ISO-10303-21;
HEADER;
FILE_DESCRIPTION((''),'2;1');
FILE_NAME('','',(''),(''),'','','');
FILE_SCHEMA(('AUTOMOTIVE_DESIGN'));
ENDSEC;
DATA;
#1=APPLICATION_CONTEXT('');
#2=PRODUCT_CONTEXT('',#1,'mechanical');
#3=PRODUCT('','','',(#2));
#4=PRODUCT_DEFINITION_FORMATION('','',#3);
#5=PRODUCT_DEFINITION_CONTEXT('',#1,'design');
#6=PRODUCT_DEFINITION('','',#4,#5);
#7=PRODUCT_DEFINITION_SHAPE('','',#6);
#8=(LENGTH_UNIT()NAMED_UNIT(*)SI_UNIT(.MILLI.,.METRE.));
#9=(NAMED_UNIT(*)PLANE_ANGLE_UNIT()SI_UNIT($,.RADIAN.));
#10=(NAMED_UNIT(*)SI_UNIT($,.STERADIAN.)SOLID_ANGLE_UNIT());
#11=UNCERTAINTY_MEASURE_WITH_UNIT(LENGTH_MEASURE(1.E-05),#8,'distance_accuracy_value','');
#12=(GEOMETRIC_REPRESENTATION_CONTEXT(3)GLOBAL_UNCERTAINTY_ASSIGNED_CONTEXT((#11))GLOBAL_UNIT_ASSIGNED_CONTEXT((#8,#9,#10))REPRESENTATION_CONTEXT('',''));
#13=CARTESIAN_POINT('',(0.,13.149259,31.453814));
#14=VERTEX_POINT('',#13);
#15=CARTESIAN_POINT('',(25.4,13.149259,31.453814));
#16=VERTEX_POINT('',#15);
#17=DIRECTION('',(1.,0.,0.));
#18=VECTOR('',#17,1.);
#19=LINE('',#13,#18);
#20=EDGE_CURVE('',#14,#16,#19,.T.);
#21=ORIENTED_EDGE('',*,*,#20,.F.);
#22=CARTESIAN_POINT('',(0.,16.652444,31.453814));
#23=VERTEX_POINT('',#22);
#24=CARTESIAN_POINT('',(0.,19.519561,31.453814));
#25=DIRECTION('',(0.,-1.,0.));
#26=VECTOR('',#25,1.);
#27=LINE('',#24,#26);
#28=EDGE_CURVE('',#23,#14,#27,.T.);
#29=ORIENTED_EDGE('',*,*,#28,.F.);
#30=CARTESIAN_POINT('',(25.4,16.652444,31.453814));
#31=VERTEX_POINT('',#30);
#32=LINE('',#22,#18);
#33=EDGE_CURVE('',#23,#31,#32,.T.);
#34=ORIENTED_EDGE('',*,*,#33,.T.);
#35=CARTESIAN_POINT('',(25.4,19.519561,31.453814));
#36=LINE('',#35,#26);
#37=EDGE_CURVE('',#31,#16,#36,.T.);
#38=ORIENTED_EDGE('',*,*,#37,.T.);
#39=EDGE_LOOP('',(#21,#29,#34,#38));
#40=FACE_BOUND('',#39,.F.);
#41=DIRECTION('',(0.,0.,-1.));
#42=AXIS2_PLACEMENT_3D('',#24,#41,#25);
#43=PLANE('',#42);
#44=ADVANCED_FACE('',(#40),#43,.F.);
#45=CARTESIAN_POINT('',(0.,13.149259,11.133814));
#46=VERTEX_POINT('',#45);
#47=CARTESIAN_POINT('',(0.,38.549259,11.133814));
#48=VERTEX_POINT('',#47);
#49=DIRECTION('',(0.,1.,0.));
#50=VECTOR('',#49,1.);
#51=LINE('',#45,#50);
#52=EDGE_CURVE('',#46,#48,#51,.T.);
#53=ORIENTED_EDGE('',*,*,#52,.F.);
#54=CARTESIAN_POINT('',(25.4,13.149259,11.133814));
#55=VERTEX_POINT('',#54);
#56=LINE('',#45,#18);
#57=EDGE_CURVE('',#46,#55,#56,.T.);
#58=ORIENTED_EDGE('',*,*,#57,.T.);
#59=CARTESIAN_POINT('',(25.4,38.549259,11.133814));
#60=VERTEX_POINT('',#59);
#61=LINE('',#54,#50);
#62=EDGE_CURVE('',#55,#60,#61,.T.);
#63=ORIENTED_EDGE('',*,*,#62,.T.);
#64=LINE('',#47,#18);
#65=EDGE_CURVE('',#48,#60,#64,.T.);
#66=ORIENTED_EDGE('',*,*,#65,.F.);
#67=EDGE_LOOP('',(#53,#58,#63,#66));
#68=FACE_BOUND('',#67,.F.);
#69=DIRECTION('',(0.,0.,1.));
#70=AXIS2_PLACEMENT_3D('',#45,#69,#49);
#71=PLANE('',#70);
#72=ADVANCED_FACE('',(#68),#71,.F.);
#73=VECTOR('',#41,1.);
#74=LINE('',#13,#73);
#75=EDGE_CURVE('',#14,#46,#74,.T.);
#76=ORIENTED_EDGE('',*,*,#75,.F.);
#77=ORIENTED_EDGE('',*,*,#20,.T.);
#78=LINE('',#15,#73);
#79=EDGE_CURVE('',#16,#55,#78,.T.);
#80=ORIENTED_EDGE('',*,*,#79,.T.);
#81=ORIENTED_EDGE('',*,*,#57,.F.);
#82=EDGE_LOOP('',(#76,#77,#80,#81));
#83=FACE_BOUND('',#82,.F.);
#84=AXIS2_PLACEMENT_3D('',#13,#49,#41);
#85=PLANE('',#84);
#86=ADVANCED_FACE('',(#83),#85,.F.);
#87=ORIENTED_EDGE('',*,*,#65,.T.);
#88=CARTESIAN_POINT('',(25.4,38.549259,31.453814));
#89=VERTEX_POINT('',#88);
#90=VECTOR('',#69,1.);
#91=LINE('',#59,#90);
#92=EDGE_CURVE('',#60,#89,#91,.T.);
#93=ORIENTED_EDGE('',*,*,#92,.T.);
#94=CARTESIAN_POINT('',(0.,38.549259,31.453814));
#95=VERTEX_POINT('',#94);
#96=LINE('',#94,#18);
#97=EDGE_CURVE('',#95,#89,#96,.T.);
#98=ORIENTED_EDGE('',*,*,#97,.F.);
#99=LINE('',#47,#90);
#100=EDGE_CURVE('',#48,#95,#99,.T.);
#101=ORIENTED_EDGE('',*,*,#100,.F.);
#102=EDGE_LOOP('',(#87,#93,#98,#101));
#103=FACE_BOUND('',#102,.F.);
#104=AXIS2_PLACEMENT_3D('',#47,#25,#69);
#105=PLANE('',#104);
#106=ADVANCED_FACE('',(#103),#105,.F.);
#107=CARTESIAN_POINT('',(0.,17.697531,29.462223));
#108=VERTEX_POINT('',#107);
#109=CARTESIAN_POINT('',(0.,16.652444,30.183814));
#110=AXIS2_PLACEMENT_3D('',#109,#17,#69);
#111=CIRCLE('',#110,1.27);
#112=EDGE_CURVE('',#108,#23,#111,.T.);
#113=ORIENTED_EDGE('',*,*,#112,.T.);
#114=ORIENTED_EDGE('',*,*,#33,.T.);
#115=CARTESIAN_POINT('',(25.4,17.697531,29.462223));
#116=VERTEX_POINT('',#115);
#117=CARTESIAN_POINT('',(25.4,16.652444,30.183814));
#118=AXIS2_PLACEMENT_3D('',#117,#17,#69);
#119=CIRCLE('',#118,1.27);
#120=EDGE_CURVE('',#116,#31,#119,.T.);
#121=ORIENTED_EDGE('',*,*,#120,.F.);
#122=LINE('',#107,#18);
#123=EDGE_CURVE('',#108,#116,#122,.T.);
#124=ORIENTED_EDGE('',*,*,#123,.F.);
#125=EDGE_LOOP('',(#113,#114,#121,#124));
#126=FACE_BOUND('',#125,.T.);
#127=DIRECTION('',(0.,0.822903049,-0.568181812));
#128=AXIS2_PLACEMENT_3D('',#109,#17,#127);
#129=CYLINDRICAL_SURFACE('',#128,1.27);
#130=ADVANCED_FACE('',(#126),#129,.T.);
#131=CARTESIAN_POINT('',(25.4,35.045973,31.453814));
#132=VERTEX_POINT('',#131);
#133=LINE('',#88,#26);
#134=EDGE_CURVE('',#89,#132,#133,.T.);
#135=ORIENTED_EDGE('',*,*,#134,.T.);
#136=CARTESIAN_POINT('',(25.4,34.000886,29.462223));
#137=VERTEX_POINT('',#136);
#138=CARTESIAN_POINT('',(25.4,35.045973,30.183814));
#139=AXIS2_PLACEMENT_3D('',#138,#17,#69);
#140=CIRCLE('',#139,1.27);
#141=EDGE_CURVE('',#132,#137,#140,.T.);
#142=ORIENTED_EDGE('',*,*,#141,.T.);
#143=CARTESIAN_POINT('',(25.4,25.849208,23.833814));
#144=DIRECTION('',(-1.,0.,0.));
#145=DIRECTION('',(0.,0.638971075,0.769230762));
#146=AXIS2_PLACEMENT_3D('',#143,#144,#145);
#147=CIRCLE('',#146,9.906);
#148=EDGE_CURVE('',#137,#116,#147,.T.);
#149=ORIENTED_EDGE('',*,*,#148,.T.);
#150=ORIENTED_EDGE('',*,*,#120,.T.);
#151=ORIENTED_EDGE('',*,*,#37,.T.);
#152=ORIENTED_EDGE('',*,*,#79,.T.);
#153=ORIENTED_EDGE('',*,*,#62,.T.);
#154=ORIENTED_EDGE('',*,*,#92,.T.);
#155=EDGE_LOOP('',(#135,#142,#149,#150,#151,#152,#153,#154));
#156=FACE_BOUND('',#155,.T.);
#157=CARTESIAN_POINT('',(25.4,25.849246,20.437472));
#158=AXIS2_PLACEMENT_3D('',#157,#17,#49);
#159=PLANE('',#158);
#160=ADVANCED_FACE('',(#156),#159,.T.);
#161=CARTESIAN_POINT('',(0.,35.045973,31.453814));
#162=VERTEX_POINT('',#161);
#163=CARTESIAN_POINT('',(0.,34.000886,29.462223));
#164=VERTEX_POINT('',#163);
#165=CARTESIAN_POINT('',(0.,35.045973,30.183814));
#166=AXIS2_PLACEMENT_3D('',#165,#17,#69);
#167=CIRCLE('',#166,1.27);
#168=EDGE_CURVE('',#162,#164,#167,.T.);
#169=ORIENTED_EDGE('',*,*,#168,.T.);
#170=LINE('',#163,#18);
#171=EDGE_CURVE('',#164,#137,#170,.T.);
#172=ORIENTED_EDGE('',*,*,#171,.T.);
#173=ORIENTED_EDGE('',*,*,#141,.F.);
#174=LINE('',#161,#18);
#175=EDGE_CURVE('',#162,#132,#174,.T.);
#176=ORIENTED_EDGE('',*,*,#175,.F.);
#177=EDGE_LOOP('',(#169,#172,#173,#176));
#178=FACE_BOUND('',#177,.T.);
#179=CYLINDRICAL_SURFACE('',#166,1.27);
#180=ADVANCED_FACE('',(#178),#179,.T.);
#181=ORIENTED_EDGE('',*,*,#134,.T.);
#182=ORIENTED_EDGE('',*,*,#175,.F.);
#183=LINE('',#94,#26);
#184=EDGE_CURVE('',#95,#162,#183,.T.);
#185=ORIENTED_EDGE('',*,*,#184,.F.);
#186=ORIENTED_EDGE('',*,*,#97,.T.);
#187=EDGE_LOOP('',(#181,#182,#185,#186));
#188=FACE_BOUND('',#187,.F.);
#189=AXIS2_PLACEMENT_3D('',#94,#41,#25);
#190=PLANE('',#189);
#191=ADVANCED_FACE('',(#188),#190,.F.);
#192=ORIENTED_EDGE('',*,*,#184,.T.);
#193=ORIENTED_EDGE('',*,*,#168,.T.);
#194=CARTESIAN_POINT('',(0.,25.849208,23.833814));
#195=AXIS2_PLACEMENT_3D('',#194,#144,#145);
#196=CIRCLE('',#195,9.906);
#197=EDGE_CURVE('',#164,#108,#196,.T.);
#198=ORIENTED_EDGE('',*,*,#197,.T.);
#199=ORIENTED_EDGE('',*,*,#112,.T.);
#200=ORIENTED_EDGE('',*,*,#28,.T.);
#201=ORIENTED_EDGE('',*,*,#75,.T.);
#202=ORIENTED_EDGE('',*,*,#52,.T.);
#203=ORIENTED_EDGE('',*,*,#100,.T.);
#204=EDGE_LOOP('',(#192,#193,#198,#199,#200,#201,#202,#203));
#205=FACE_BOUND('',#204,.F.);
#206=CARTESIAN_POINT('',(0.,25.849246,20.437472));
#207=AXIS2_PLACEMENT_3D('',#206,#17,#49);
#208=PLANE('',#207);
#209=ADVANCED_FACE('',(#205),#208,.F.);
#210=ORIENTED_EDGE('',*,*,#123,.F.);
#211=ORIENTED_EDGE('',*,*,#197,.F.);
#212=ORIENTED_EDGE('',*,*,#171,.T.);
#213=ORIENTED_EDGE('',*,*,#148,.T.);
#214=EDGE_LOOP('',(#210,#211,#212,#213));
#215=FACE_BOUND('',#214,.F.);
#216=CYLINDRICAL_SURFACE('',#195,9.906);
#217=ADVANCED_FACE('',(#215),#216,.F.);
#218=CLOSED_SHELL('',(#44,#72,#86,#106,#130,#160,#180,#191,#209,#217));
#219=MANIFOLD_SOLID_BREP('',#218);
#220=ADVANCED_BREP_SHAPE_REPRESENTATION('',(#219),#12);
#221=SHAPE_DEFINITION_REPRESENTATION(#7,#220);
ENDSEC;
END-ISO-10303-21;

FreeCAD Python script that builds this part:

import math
import FreeCAD as App
import Part
import Sketcher
from FreeCAD import Vector
Q = App.Units.Quantity


def edges_at(feature, points):
    """Names of the edges that pass closest to the given points."""
    edges = feature.Shape.Edges
    near = lambda p: min(range(len(edges)), key=lambda i: edges[i].distToShape(Part.Vertex(*p))[0])
    return sorted({f"Edge{near(p) + 1}" for p in points})

doc = App.newDocument("Part")
body = doc.addObject("PartDesign::Body", "Body")

# Sketch on YZ plane
sketch1 = body.newObject("Sketcher::SketchObject", "Sketch")
sketch1.AttachmentSupport = (doc.getObject("YZ_Plane"), [""])
sketch1.MapMode = "FlatFace"
sketch1.addGeometry([
    Part.LineSegment(Vector(13, 31, 0), Vector(13, 11, 0)),  # 0
    Part.LineSegment(Vector(13, 11, 0), Vector(39, 11, 0)),  # 1
    Part.LineSegment(Vector(39, 11, 0), Vector(39, 31, 0)),  # 2
    Part.LineSegment(Vector(39, 31, 0), Vector(32, 31, 0)),  # 3
    Part.ArcOfCircle(Part.Circle(Vector(26, 24, 0), Vector(0, 0, 1), 10), math.radians(130), math.radians(410)),  # 4
    Part.LineSegment(Vector(20, 31, 0), Vector(13, 31, 0)),  # 5
], False)
sketch1.addConstraint([
    Sketcher.Constraint("Coincident", 0, 2, 1, 1),
    Sketcher.Constraint("Coincident", 1, 2, 2, 1),
    Sketcher.Constraint("Coincident", 2, 2, 3, 1),
    Sketcher.Constraint("Coincident", 3, 2, 4, 2),
    Sketcher.Constraint("Coincident", 4, 1, 5, 1),
    Sketcher.Constraint("Coincident", 5, 2, 0, 1),
    Sketcher.Constraint("Vertical", 0),
    Sketcher.Constraint("Horizontal", 1),
    Sketcher.Constraint("Vertical", 2),
    Sketcher.Constraint("Horizontal", 3),
    Sketcher.Constraint("Horizontal", 5),
    Sketcher.Constraint("Horizontal", 3, 2, 4, 1),
    Sketcher.Constraint("DistanceX", 1, 1, 1, 2, Q("1 in")),
    Sketcher.Constraint("Radius", 4, Q("0.39 in")),
    Sketcher.Constraint("DistanceY", 0, 2, 0, 1, Q("0.8 in")),
    Sketcher.Constraint("DistanceY", 0, 2, 4, 3, Q("0.5 in")),
    Sketcher.Constraint("DistanceX", 5, 2, 5, 1, Q("6.370302 mm")),
    Sketcher.Constraint("DistanceX", -1, 1, 4, 3, Q("25.849208 mm")),
    Sketcher.Constraint("DistanceY", -1, 1, 4, 3, Q("23.833814 mm")),
])
pad1 = body.newObject("PartDesign::Pad", "Pad")
pad1.Profile = sketch1
pad1.Length = Q("1 in")
doc.recompute()

fillet = body.newObject("PartDesign::Fillet", "Fillet")
fillet.Base = (pad1, edges_at(pad1, [(12.7, 32.179, 31.454), (12.7, 19.52, 31.454)]))
fillet.Radius = Q("0.05 in")

doc.recompute()
